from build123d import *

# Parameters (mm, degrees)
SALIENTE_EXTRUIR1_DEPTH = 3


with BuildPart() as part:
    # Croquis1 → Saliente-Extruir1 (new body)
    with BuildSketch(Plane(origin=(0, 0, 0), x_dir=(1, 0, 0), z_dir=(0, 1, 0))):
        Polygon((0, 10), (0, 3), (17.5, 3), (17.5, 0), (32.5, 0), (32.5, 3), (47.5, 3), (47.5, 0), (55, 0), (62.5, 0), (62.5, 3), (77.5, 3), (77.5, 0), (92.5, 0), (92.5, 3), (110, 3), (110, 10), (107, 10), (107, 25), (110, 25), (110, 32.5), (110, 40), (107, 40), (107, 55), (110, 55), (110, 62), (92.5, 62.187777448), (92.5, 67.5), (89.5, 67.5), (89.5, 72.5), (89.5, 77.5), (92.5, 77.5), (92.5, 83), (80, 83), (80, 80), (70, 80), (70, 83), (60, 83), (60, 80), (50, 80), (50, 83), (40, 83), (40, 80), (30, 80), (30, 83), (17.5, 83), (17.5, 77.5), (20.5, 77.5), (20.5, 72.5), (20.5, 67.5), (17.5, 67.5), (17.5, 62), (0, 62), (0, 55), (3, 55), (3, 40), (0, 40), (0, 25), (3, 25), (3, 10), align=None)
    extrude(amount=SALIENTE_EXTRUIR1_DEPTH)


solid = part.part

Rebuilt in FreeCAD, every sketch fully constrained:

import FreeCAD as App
import Part
import Sketcher
from FreeCAD import Vector
Q = App.Units.Quantity


def add_polygon(sketch, points):
    """Adds a closed chain of lines whose ends are joined by coincident constraints."""
    first, n = sketch.GeometryCount, len(points)
    for a, b in zip(points, points[1:] + points[:1]):
        sketch.addGeometry(Part.LineSegment(App.Vector(*a, 0), App.Vector(*b, 0)), False)
    for i in range(n):
        sketch.addConstraint(Sketcher.Constraint("Coincident", first + i, 2, first + (i + 1) % n, 1))

doc = App.newDocument("Part")
params = doc.addObject("Spreadsheet::Sheet", "Params")
for row, (alias, value) in enumerate([
    ("sketch1_width", "15 mm"),
    ("sketch1_width2", "3 mm"),
    ("sketch1_width3", "10 mm"),
    ("sketch1_height", "7 mm"),
    ("sketch1_width4", "17.5 mm"),
    ("pad1_length", "3 mm"),
], start=1):
    params.set(f"A{row}", alias)
    params.set(f"B{row}", "=" + value)
    params.setAlias(f"B{row}", alias)

body = doc.addObject("PartDesign::Body", "Body")

sketch1 = body.newObject("Sketcher::SketchObject", "Sketch")
sketch1.AttachmentSupport = (doc.getObject("XZ_Plane"), [""])
sketch1.MapMode = "FlatFace"
add_polygon(sketch1, [(0, -10), (0, -3), (17.5, -3), (17.5, 0), (32.5, 0), (32.5, -3), (47.5, -3), (47.5, 0), (62.5, 0), (62.5, -3), (77.5, -3), (77.5, 0), (92.5, 0), (92.5, -3), (110, -3), (110, -10), (107, -10), (107, -25), (110, -25), (110, -40), (107, -40), (107, -55), (110, -55), (110, -62), (92.5, -62.187777), (92.5, -67.5), (89.5, -67.5), (89.5, -77.5), (92.5, -77.5), (92.5, -83), (80, -83), (80, -80), (70, -80), (70, -83), (60, -83), (60, -80), (50, -80), (50, -83), (40, -83), (40, -80), (30, -80), (30, -83), (17.5, -83), (17.5, -77.5), (20.5, -77.5), (20.5, -67.5), (17.5, -67.5), (17.5, -62), (0, -62), (0, -55), (3, -55), (3, -40), (0, -40), (0, -25), (3, -25), (3, -10)])
sketch1.addConstraint(Sketcher.Constraint("Vertical", 0))
sketch1.addConstraint(Sketcher.Constraint("Horizontal", 1))
sketch1.addConstraint(Sketcher.Constraint("Vertical", 2))
sketch1.addConstraint(Sketcher.Constraint("Horizontal", 3))
sketch1.addConstraint(Sketcher.Constraint("Vertical", 4))
sketch1.addConstraint(Sketcher.Constraint("Horizontal", 5))
sketch1.addConstraint(Sketcher.Constraint("Vertical", 6))
sketch1.addConstraint(Sketcher.Constraint("Horizontal", 7))
sketch1.addConstraint(Sketcher.Constraint("Vertical", 8))
sketch1.addConstraint(Sketcher.Constraint("Horizontal", 9))
sketch1.addConstraint(Sketcher.Constraint("Vertical", 10))
sketch1.addConstraint(Sketcher.Constraint("Horizontal", 11))
sketch1.addConstraint(Sketcher.Constraint("Vertical", 12))
sketch1.addConstraint(Sketcher.Constraint("Horizontal", 13))
sketch1.addConstraint(Sketcher.Constraint("Vertical", 14))
sketch1.addConstraint(Sketcher.Constraint("Horizontal", 15))
sketch1.addConstraint(Sketcher.Constraint("Vertical", 16))
sketch1.addConstraint(Sketcher.Constraint("Horizontal", 17))
sketch1.addConstraint(Sketcher.Constraint("Vertical", 18))
sketch1.addConstraint(Sketcher.Constraint("Horizontal", 19))
sketch1.addConstraint(Sketcher.Constraint("Vertical", 20))
sketch1.addConstraint(Sketcher.Constraint("Horizontal", 21))
sketch1.addConstraint(Sketcher.Constraint("Vertical", 22))
sketch1.addConstraint(Sketcher.Constraint("Vertical", 24))
sketch1.addConstraint(Sketcher.Constraint("Horizontal", 25))
sketch1.addConstraint(Sketcher.Constraint("Vertical", 26))
sketch1.addConstraint(Sketcher.Constraint("Horizontal", 27))
sketch1.addConstraint(Sketcher.Constraint("Vertical", 28))
sketch1.addConstraint(Sketcher.Constraint("Horizontal", 29))
sketch1.addConstraint(Sketcher.Constraint("Vertical", 30))
sketch1.addConstraint(Sketcher.Constraint("Horizontal", 31))
sketch1.addConstraint(Sketcher.Constraint("Vertical", 32))
sketch1.addConstraint(Sketcher.Constraint("Horizontal", 33))
sketch1.addConstraint(Sketcher.Constraint("Vertical", 34))
sketch1.addConstraint(Sketcher.Constraint("Horizontal", 35))
sketch1.addConstraint(Sketcher.Constraint("Vertical", 36))
sketch1.addConstraint(Sketcher.Constraint("Horizontal", 37))
sketch1.addConstraint(Sketcher.Constraint("Vertical", 38))
sketch1.addConstraint(Sketcher.Constraint("Horizontal", 39))
sketch1.addConstraint(Sketcher.Constraint("Vertical", 40))
sketch1.addConstraint(Sketcher.Constraint("Horizontal", 41))
sketch1.addConstraint(Sketcher.Constraint("Vertical", 42))
sketch1.addConstraint(Sketcher.Constraint("Horizontal", 43))
sketch1.addConstraint(Sketcher.Constraint("Vertical", 44))
sketch1.addConstraint(Sketcher.Constraint("Horizontal", 45))
sketch1.addConstraint(Sketcher.Constraint("Vertical", 46))
sketch1.addConstraint(Sketcher.Constraint("Horizontal", 47))
sketch1.addConstraint(Sketcher.Constraint("Vertical", 48))
sketch1.addConstraint(Sketcher.Constraint("Horizontal", 49))
sketch1.addConstraint(Sketcher.Constraint("Vertical", 50))
sketch1.addConstraint(Sketcher.Constraint("Horizontal", 51))
sketch1.addConstraint(Sketcher.Constraint("Vertical", 52))
sketch1.addConstraint(Sketcher.Constraint("Horizontal", 53))
sketch1.addConstraint(Sketcher.Constraint("Vertical", 54))
sketch1.addConstraint(Sketcher.Constraint("Horizontal", 55))
sketch1.addConstraint(Sketcher.Constraint("PointOnObject", 0, 2, -2))
sketch1.addConstraint(Sketcher.Constraint("PointOnObject", 2, 2, -1))
sketch1.addConstraint(Sketcher.Constraint("PointOnObject", 6, 2, -1))
sketch1.addConstraint(Sketcher.Constraint("PointOnObject", 10, 2, -1))
sketch1.addConstraint(Sketcher.Constraint("PointOnObject", 47, 2, -2))
sketch1.addConstraint(Sketcher.Constraint("PointOnObject", 51, 2, -2))
sketch1.addConstraint(Sketcher.Constraint("Horizontal", 1, 2, 4, 2))
sketch1.addConstraint(Sketcher.Constraint("Horizontal", 5, 2, 8, 2))
sketch1.addConstraint(Sketcher.Constraint("Horizontal", 9, 2, 12, 2))
sketch1.addConstraint(Sketcher.Constraint("Horizontal", 29, 2, 32, 2))
sketch1.addConstraint(Sketcher.Constraint("Horizontal", 31, 2, 34, 2))
sketch1.addConstraint(Sketcher.Constraint("Horizontal", 33, 2, 36, 2))
sketch1.addConstraint(Sketcher.Constraint("Horizontal", 35, 2, 38, 2))
sketch1.addConstraint(Sketcher.Constraint("Horizontal", 37, 2, 40, 2))
sketch1.addConstraint(Sketcher.Constraint("Horizontal", 27, 2, 42, 2))
sketch1.addConstraint(Sketcher.Constraint("Horizontal", 25, 2, 44, 2))
sketch1.addConstraint(Sketcher.Constraint("Horizontal", 22, 2, 46, 2))
sketch1.addConstraint(Sketcher.Constraint("Horizontal", 21, 2, 48, 2))
sketch1.addConstraint(Sketcher.Constraint("Horizontal", 19, 2, 50, 2))
sketch1.addConstraint(Sketcher.Constraint("Horizontal", 17, 2, 52, 2))
sketch1.addConstraint(Sketcher.Constraint("Horizontal", 15, 2, 54, 2))
sketch1.addConstraint(Sketcher.Constraint("Vertical", 14, 2, 17, 2))
sketch1.addConstraint(Sketcher.Constraint("Vertical", 16, 2, 19, 2))
sketch1.addConstraint(Sketcher.Constraint("Vertical", 18, 2, 21, 2))
sketch1.addConstraint(Sketcher.Constraint("Vertical", 12, 2, 23, 2))
sketch1.addConstraint(Sketcher.Constraint("Vertical", 24, 2, 27, 2))
sketch1.addConstraint(Sketcher.Constraint("Vertical", 2, 2, 41, 2))
sketch1.addConstraint(Sketcher.Constraint("Vertical", 42, 2, 45, 2))
sketch1.addConstraint(Sketcher.Constraint("Vertical", 50, 2, 53, 2))
sketch1.addConstraint(Sketcher.Constraint("Equal", 3, 5))
sketch1.addConstraint(Sketcher.Constraint("Equal", 5, 7))
sketch1.addConstraint(Sketcher.Constraint("Equal", 7, 9))
sketch1.addConstraint(Sketcher.Constraint("Equal", 9, 11))
sketch1.addConstraint(Sketcher.Constraint("Equal", 1, 13))
sketch1.addConstraint(Sketcher.Constraint("Equal", 21, 25))
sketch1.addConstraint(Sketcher.Constraint("Equal", 31, 33))
sketch1.addConstraint(Sketcher.Constraint("Equal", 33, 35))
sketch1.addConstraint(Sketcher.Constraint("Equal", 35, 37))
sketch1.addConstraint(Sketcher.Constraint("Equal", 37, 39))
sketch1.addConstraint(Sketcher.Constraint("Equal", 29, 41))
sketch1.addConstraint(Sketcher.Constraint("Equal", 27, 43))
sketch1.addConstraint(Sketcher.Constraint("Equal", 45, 49))
sketch1.addConstraint(Sketcher.Constraint("Equal", 55, 2))
sketch1.addConstraint(Sketcher.Constraint("Equal", 11, 16))
sketch1.addConstraint(Sketcher.Constraint("Equal", 16, 18))
sketch1.addConstraint(Sketcher.Constraint("Equal", 18, 20))
sketch1.addConstraint(Sketcher.Constraint("Equal", 14, 22))
sketch1.addConstraint(Sketcher.Constraint("Equal", 39, 26))
sketch1.addConstraint(Sketcher.Constraint("Equal", 12, 30))
sketch1.addConstraint(Sketcher.Constraint("Equal", 42, 46))
sketch1.addConstraint(Sketcher.Constraint("DistanceX", 3, 1, 3, 2, Q("15 mm")))
sketch1.addConstraint(Sketcher.Constraint("DistanceX", 15, 2, 15, 1, Q("3 mm")))
sketch1.addConstraint(Sketcher.Constraint("DistanceX", 31, 2, 31, 1, Q("10 mm")))
sketch1.addConstraint(Sketcher.Constraint("DistanceY", 0, 1, 0, 2, Q("7 mm")))
sketch1.addConstraint(Sketcher.Constraint("DistanceX", 1, 1, 1, 2, Q("17.5 mm")))
sketch1.addConstraint(Sketcher.Constraint("DistanceY", 28, 2, 28, 1, Q("5.5 mm")))
sketch1.addConstraint(Sketcher.Constraint("DistanceY", 24, 2, 24, 1, Q("5.312223 mm")))
sketch1.setExpression("Constraints[161]", "Params.sketch1_width")
sketch1.setExpression("Constraints[162]", "Params.sketch1_width2")
sketch1.setExpression("Constraints[163]", "Params.sketch1_width3")
sketch1.setExpression("Constraints[164]", "Params.sketch1_height")
sketch1.setExpression("Constraints[165]", "Params.sketch1_width4")
pad1 = body.newObject("PartDesign::Pad", "Pad")
pad1.Profile = sketch1
pad1.setExpression("Length", "Params.pad1_length")
pad1.Reversed = True

doc.recompute()
